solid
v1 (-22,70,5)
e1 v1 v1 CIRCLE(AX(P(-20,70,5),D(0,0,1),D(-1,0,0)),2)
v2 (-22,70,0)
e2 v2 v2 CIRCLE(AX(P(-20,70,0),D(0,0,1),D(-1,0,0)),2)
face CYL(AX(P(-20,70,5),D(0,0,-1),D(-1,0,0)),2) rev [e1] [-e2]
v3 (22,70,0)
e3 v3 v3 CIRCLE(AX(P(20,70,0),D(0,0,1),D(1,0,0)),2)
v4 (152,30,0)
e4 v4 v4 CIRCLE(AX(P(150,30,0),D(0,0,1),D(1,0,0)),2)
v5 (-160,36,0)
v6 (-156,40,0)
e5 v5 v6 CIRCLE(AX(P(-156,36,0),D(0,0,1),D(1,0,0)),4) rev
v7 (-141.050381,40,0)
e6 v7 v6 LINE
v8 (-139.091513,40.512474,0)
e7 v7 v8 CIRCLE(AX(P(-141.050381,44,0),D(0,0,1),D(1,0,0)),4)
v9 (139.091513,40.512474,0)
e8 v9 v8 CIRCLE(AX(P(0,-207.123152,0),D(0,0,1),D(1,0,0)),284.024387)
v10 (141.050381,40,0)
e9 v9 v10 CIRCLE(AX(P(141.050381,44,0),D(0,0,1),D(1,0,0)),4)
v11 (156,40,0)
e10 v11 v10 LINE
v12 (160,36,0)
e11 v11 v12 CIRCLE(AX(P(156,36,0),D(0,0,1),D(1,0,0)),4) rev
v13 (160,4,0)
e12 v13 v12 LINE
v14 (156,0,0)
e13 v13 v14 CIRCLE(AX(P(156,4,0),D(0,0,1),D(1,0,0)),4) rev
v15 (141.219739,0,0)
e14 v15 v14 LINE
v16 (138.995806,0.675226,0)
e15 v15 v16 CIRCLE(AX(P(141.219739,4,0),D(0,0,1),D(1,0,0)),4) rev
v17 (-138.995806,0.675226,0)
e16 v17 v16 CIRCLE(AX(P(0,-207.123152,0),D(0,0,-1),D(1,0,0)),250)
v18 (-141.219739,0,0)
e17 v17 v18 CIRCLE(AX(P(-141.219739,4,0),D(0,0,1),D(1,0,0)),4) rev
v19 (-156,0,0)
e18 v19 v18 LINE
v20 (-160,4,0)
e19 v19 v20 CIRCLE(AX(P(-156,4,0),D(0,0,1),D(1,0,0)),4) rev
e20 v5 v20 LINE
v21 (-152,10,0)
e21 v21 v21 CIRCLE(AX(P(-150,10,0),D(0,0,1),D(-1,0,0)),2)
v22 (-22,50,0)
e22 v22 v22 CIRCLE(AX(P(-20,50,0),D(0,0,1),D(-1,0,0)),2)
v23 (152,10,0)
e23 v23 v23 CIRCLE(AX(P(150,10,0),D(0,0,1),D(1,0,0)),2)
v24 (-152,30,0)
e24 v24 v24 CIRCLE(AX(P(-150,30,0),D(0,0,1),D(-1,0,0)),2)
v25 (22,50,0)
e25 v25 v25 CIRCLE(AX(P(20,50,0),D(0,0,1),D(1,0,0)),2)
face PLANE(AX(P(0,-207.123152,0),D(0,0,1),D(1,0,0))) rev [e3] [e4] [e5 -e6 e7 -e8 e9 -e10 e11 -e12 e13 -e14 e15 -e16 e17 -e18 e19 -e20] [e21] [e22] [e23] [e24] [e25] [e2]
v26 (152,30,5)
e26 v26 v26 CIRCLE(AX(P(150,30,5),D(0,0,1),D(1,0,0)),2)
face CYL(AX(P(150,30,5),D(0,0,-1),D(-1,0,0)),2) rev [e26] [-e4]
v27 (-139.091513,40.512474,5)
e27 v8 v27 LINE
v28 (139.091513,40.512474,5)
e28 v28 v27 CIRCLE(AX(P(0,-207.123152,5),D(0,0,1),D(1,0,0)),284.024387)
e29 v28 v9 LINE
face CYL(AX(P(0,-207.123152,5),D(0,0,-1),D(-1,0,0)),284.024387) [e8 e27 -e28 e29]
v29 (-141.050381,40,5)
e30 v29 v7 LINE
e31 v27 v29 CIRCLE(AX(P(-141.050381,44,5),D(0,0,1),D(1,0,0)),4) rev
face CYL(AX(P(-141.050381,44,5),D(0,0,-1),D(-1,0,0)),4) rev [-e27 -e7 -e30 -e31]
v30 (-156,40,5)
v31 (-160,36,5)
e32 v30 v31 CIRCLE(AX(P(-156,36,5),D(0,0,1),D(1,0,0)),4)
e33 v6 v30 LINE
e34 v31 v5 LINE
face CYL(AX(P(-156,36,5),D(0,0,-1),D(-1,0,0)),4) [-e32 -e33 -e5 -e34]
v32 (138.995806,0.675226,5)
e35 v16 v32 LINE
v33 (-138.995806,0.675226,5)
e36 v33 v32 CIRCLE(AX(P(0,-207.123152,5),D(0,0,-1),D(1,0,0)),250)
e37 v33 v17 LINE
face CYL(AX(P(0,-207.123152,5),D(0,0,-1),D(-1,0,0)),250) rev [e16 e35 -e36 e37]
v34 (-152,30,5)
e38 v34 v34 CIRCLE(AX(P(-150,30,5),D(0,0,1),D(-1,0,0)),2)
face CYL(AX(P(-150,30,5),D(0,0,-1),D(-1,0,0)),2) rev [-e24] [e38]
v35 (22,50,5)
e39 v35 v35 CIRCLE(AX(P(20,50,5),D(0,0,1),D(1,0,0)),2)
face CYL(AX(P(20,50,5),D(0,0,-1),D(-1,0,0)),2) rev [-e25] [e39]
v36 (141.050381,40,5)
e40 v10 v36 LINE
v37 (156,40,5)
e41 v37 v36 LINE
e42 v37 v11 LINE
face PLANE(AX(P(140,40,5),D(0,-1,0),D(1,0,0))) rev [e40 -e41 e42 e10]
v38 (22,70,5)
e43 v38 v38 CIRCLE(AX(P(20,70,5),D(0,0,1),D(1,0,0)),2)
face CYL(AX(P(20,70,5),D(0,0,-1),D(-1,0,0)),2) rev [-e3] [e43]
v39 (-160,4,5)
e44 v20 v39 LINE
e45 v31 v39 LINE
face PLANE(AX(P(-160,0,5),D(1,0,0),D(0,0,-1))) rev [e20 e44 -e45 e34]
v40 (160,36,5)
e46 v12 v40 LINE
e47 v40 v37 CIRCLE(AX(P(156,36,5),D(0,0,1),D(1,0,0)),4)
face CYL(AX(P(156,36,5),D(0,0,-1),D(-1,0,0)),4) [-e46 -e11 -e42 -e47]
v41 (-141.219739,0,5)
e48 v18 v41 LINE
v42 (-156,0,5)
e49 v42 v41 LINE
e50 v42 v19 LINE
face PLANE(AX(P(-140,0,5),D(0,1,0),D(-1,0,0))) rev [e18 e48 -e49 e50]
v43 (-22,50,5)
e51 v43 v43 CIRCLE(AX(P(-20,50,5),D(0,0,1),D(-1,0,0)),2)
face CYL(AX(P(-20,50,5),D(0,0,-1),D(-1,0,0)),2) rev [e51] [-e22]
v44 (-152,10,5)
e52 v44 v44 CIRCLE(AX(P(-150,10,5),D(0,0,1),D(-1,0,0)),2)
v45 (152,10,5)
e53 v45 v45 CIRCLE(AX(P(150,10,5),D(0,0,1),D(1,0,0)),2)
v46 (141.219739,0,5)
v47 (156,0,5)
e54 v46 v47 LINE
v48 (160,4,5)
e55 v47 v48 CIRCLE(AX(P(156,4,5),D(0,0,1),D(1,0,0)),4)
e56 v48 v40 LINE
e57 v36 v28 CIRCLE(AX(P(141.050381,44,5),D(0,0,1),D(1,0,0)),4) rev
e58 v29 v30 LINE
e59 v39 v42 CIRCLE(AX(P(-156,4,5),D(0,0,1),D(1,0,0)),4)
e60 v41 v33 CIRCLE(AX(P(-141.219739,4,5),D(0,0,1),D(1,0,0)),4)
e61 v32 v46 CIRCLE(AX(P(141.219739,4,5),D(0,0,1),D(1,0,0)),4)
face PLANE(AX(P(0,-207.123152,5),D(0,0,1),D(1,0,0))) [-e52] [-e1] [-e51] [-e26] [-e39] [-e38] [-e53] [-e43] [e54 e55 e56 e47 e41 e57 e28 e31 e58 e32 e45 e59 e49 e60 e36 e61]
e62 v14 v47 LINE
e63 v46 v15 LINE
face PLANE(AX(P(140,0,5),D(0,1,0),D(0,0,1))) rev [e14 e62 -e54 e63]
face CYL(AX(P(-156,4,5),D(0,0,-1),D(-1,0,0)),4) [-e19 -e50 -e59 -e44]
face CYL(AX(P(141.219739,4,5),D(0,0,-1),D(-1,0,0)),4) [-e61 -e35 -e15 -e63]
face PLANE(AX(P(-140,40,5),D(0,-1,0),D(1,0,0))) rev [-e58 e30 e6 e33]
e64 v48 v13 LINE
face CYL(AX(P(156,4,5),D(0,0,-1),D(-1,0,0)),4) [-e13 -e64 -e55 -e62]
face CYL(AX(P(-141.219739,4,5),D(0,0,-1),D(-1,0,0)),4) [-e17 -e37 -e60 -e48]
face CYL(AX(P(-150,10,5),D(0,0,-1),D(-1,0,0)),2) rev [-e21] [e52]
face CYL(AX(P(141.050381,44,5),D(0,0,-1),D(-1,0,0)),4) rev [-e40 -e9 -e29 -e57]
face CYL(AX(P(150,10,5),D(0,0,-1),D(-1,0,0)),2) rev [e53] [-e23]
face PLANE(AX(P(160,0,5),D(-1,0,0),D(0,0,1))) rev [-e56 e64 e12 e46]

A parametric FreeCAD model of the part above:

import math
import FreeCAD as App
import Part
import Sketcher
Q = App.Units.Quantity


def edges_at(feature, points):
    """Names of the edges that pass closest to the given points."""
    edges = feature.Shape.Edges
    near = lambda p: min(range(len(edges)), key=lambda i: edges[i].distToShape(Part.Vertex(*p))[0])
    return sorted({f"Edge{near(p) + 1}" for p in points})

doc = App.newDocument("Part")
body = doc.addObject("PartDesign::Body", "Body")

# Sketch on XY plane
sketch1 = body.newObject("Sketcher::SketchObject", "Sketch")
sketch1.AttachmentSupport = (doc.getObject("XY_Plane"), [""])
sketch1.MapMode = "FlatFace"
sketch1.addGeometry(Part.LineSegment(App.Vector(160, 0, 0), App.Vector(160, 40, 0)), False)
sketch1.addGeometry(Part.LineSegment(App.Vector(160, 40, 0), App.Vector(140, 40, 0)), False)
sketch1.addGeometry(Part.ArcOfCircle(Part.Circle(App.Vector(0, -207.1, 0), App.Vector(0, 0, 1), 284), math.radians(60), math.radians(120)), False)
sketch1.addGeometry(Part.LineSegment(App.Vector(-140, 40, 0), App.Vector(-160, 40, 0)), False)
sketch1.addGeometry(Part.LineSegment(App.Vector(-160, 40, 0), App.Vector(-160, 0, 0)), False)
sketch1.addGeometry(Part.LineSegment(App.Vector(-160, 0, 0), App.Vector(-140, 0, 0)), False)
sketch1.addGeometry(Part.ArcOfCircle(Part.Circle(App.Vector(0, -207.1, 0), App.Vector(0, 0, 1), 250), math.radians(56), math.radians(124)), False)
sketch1.addGeometry(Part.LineSegment(App.Vector(140, 0, 0), App.Vector(160, 0, 0)), False)
sketch1.addGeometry(Part.Circle(App.Vector(-150, 10, 0), App.Vector(0, 0, 1), 2), False)
sketch1.addGeometry(Part.Circle(App.Vector(-150, 30, 0), App.Vector(0, 0, 1), 2), False)
sketch1.addGeometry(Part.Circle(App.Vector(150, 10, 0), App.Vector(0, 0, 1), 2), False)
sketch1.addGeometry(Part.Circle(App.Vector(150, 30, 0), App.Vector(0, 0, 1), 2), False)
sketch1.addGeometry(Part.Circle(App.Vector(-20, 50, 0), App.Vector(0, 0, 1), 2), False)
sketch1.addGeometry(Part.Circle(App.Vector(-20, 70, 0), App.Vector(0, 0, 1), 2), False)
sketch1.addGeometry(Part.Circle(App.Vector(20, 50, 0), App.Vector(0, 0, 1), 2), False)
sketch1.addGeometry(Part.Circle(App.Vector(20, 70, 0), App.Vector(0, 0, 1), 2), False)
sketch1.addConstraint(Sketcher.Constraint("Coincident", 0, 2, 1, 1))
sketch1.addConstraint(Sketcher.Constraint("Coincident", 1, 2, 2, 1))
sketch1.addConstraint(Sketcher.Constraint("Coincident", 2, 2, 3, 1))
sketch1.addConstraint(Sketcher.Constraint("Coincident", 3, 2, 4, 1))
sketch1.addConstraint(Sketcher.Constraint("Coincident", 4, 2, 5, 1))
sketch1.addConstraint(Sketcher.Constraint("Coincident", 5, 2, 6, 2))
sketch1.addConstraint(Sketcher.Constraint("Coincident", 6, 1, 7, 1))
sketch1.addConstraint(Sketcher.Constraint("Coincident", 7, 2, 0, 1))
sketch1.addConstraint(Sketcher.Constraint("Vertical", 0))
sketch1.addConstraint(Sketcher.Constraint("Horizontal", 1))
sketch1.addConstraint(Sketcher.Constraint("Horizontal", 3))
sketch1.addConstraint(Sketcher.Constraint("Vertical", 4))
sketch1.addConstraint(Sketcher.Constraint("Horizontal", 5))
sketch1.addConstraint(Sketcher.Constraint("Horizontal", 7))
sketch1.addConstraint(Sketcher.Constraint("Coincident", 6, 3, 2, 3))
sketch1.addConstraint(Sketcher.Constraint("Equal", 8, 9))
sketch1.addConstraint(Sketcher.Constraint("Equal", 9, 10))
sketch1.addConstraint(Sketcher.Constraint("Equal", 10, 11))
sketch1.addConstraint(Sketcher.Constraint("Equal", 11, 12))
sketch1.addConstraint(Sketcher.Constraint("Equal", 12, 13))
sketch1.addConstraint(Sketcher.Constraint("Equal", 13, 14))
sketch1.addConstraint(Sketcher.Constraint("Equal", 14, 15))
sketch1.addConstraint(Sketcher.Constraint("Symmetric", 5, 2, 6, 1, -1, 1))
sketch1.addConstraint(Sketcher.Constraint("Symmetric", 8, 3, 10, 3, -2))
sketch1.addConstraint(Sketcher.Constraint("Symmetric", 9, 3, 11, 3, -2))
sketch1.addConstraint(Sketcher.Constraint("Symmetric", 12, 3, 14, 3, -2))
sketch1.addConstraint(Sketcher.Constraint("Symmetric", 13, 3, 15, 3, -2))
sketch1.addConstraint(Sketcher.Constraint("Symmetric", 1, 2, 2, 2, -2))
sketch1.addConstraint(Sketcher.Constraint("Vertical", 8, 3, 9, 3))
sketch1.addConstraint(Sketcher.Constraint("Vertical", 12, 3, 13, 3))
sketch1.addConstraint(Sketcher.Constraint("Vertical", 2, 2, 5, 2))
sketch1.addConstraint(Sketcher.Constraint("Equal", 1, 3))
sketch1.addConstraint(Sketcher.Constraint("Diameter", 8, Q("4 mm")))
sketch1.addConstraint(Sketcher.Constraint("Radius", 6, Q("250 mm")))
sketch1.addConstraint(Sketcher.Constraint("DistanceX", 1, 2, 1, 1, Q("20 mm")))
sketch1.addConstraint(Sketcher.Constraint("DistanceY", 0, 1, 0, 2, Q("40 mm")))
sketch1.addConstraint(Sketcher.Constraint("DistanceX", 8, 3, -1, 1, Q("150 mm")))
sketch1.addConstraint(Sketcher.Constraint("DistanceY", -1, 1, 8, 3, Q("10 mm")))
sketch1.addConstraint(Sketcher.Constraint("DistanceY", -1, 1, 9, 3, Q("30 mm")))
sketch1.addConstraint(Sketcher.Constraint("DistanceX", 12, 3, -1, 1, Q("20 mm")))
sketch1.addConstraint(Sketcher.Constraint("DistanceY", -1, 1, 12, 3, Q("50 mm")))
sketch1.addConstraint(Sketcher.Constraint("DistanceY", -1, 1, 13, 3, Q("70 mm")))
sketch1.addConstraint(Sketcher.Constraint("DistanceX", -1, 1, 0, 2, Q("160 mm")))
pad1 = body.newObject("PartDesign::Pad", "Pad")
pad1.Profile = sketch1
pad1.Length = 5
doc.recompute()

fillet = body.newObject("PartDesign::Fillet", "Fillet")
fillet.Base = (pad1, edges_at(pad1, [
    (-140, 0, 2.5),
    (-160, 0, 2.5),
    (-160, 40, 2.5),
    (-140, 40, 2.5),
    (140, 40, 2.5),
    (160, 40, 2.5),
    (160, 0, 2.5),
    (140, 0, 2.5),
]))
fillet.Radius = 4

doc.recompute()
